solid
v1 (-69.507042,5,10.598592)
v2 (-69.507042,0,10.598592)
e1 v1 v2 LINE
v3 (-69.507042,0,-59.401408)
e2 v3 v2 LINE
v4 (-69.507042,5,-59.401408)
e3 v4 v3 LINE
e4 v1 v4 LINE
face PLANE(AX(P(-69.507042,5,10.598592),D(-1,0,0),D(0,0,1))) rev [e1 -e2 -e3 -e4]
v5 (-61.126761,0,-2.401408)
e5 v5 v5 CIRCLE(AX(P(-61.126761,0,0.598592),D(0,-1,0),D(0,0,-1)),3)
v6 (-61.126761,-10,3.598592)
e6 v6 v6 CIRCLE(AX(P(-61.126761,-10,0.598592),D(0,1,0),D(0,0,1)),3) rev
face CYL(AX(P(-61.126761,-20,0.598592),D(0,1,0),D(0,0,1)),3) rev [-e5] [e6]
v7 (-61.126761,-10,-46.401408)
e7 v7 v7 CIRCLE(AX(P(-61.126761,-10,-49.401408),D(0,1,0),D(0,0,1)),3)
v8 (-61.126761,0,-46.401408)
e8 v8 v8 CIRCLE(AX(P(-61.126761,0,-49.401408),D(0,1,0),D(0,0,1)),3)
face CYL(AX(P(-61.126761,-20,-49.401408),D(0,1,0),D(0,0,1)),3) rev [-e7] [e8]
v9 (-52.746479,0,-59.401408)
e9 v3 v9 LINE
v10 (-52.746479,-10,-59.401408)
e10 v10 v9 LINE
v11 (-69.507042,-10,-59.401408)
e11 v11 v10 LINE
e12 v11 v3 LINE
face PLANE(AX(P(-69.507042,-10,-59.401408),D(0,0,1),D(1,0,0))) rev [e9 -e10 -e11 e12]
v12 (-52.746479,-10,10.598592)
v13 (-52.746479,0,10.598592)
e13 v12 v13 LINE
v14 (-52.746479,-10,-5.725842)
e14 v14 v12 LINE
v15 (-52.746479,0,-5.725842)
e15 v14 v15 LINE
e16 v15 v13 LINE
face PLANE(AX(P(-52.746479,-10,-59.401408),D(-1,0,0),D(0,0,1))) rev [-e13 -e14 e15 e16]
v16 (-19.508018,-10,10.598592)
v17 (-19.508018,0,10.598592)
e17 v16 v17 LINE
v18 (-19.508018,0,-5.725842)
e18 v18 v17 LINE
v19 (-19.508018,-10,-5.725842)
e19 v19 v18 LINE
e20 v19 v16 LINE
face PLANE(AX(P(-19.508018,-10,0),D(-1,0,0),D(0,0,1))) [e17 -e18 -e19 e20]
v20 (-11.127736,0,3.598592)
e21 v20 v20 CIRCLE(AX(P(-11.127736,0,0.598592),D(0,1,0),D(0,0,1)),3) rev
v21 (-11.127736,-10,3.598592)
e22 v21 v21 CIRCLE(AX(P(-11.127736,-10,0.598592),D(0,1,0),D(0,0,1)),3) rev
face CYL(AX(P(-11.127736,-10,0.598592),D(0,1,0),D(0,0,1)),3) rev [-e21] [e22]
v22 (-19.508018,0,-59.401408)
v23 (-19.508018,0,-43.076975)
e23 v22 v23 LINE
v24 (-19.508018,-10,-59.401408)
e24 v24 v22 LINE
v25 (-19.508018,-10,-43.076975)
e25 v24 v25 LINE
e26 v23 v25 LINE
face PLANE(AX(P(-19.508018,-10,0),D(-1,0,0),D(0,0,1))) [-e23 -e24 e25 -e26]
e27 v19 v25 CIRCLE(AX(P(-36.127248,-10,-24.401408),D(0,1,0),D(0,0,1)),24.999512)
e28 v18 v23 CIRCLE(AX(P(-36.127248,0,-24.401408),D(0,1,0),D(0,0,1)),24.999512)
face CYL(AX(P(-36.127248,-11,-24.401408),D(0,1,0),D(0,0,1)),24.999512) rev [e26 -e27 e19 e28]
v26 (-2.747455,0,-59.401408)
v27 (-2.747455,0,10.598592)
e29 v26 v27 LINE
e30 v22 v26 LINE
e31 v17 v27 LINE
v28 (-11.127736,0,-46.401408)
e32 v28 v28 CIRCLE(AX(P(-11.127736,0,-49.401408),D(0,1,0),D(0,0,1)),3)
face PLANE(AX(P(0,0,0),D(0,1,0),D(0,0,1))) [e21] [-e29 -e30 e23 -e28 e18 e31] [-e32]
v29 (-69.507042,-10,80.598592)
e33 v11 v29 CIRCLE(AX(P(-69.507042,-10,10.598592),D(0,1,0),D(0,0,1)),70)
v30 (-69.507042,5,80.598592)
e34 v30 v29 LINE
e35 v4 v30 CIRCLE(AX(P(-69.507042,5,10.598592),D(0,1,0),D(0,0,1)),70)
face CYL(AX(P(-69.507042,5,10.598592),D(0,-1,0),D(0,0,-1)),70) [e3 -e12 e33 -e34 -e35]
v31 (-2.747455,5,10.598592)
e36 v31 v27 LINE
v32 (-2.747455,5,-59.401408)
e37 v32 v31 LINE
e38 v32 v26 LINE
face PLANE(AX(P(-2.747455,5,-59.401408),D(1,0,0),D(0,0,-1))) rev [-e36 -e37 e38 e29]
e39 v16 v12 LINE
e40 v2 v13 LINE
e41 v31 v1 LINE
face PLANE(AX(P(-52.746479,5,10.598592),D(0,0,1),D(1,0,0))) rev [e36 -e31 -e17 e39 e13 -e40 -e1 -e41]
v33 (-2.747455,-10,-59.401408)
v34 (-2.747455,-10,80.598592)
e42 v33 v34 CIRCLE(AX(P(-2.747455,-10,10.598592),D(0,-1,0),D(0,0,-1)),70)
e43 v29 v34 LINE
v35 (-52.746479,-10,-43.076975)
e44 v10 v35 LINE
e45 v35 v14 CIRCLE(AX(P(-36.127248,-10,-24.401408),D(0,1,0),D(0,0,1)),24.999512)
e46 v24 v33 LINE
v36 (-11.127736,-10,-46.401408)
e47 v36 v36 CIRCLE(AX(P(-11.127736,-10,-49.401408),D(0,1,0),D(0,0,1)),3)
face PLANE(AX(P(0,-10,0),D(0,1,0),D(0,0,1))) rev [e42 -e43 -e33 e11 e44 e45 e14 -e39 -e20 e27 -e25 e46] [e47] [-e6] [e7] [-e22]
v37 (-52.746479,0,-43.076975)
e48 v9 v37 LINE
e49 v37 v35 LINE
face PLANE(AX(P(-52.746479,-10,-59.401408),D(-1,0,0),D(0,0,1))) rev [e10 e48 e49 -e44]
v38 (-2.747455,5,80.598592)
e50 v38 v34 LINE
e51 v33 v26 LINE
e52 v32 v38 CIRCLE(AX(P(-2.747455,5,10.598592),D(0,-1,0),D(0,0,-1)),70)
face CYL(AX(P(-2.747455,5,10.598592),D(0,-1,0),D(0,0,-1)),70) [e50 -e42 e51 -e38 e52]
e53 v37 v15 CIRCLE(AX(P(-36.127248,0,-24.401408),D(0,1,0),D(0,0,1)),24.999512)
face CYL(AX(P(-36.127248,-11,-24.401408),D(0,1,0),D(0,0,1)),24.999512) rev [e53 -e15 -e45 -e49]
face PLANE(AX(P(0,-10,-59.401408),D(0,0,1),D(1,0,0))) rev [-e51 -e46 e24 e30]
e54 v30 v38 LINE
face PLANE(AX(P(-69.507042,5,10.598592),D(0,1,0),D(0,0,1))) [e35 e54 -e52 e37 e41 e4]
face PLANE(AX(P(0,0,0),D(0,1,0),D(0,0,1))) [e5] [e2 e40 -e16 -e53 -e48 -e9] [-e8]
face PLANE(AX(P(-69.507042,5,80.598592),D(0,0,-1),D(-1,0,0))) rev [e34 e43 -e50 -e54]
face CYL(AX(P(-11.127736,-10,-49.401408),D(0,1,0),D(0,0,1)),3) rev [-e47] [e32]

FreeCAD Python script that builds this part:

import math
import FreeCAD as App
import Part
import Sketcher

V = App.Vector

doc = App.newDocument("Part")
body = doc.addObject("PartDesign::Body", "Body")

sketch1 = body.newObject("Sketcher::SketchObject", "Sketch")
sketch1.AttachmentSupport = (doc.getObject("XZ_Plane"), [""])
sketch1.MapMode = "FlatFace"
sketch1.addGeometry([
    Part.LineSegment(V(-69.507042, -59.401408, 0), V(-69.507042, 10.598592, 0)),
    Part.LineSegment(V(-69.507042, 10.598592, 0), V(-52.746479, 10.598592, 0)),
    Part.LineSegment(V(-52.746479, 10.598592, 0), V(-52.746479, -59.401408, 0)),
    Part.LineSegment(V(-52.746479, -59.401408, 0), V(-69.507042, -59.401408, 0)),
], False)
sketch1.addConstraint([
    Sketcher.Constraint("Coincident", 0, 2, 1, 1),
    Sketcher.Constraint("Coincident", 1, 2, 2, 1),
    Sketcher.Constraint("Coincident", 2, 2, 3, 1),
    Sketcher.Constraint("Coincident", 3, 2, 0, 1),
    Sketcher.Constraint("Vertical", 0),
    Sketcher.Constraint("Horizontal", 1),
    Sketcher.Constraint("Vertical", 2),
    Sketcher.Constraint("Horizontal", 3),
    Sketcher.Constraint("DistanceY", 0, 1, 0, 2, 70.0),
    Sketcher.Constraint("DistanceX", 1, 1, 1, 2, 16.760563),
    Sketcher.Constraint("DistanceY", -1, 1, 0, 2, 10.598592),
    Sketcher.Constraint("DistanceX", 1, 2, -1, 1, 52.746479),
])
pad1 = body.newObject("PartDesign::Pad", "Pad")
pad1.Profile = sketch1
pad1.Length = 10

sketch2 = body.newObject("Sketcher::SketchObject", "Sketch001")
sketch2.AttachmentSupport = (doc.getObject("XZ_Plane"), [""])
sketch2.MapMode = "FlatFace"
sketch2.addGeometry([
    Part.Circle(V(-61.126761, -49.401408, 0), V(0, 0, 1), 3),
    Part.Circle(V(-61.126761, 0.598592, 0), V(0, 0, 1), 3),
], False)
sketch2.addConstraint([
    Sketcher.Constraint("Equal", 0, 1),
    Sketcher.Constraint("Vertical", 0, 3, 1, 3),
    Sketcher.Constraint("Diameter", 0, 6.0),
    Sketcher.Constraint("DistanceY", 0, 3, 1, 3, 50.0),
    Sketcher.Constraint("DistanceX", 0, 3, -1, 1, 61.126761),
    Sketcher.Constraint("DistanceY", 0, 3, -1, 1, 49.401408),
])
pocket1 = body.newObject("PartDesign::Pocket", "Pocket")
pocket1.Profile = sketch2
pocket1.Length = 20
pocket1.Reversed = True
body2 = doc.addObject("PartDesign::Body", "Body001")

sketch3 = body2.newObject("Sketcher::SketchObject", "Sketch002")
sketch3.AttachmentSupport = (doc.getObject("XZ_Plane001"), [""])
sketch3.MapMode = "FlatFace"
sketch3.addGeometry([
    Part.LineSegment(V(-2.747455, -59.401408, 0), V(-19.508018, -59.401408, 0)),
    Part.LineSegment(V(-19.508018, -59.401408, 0), V(-19.508018, 10.598592, 0)),
    Part.LineSegment(V(-19.508018, 10.598592, 0), V(-2.747455, 10.598592, 0)),
    Part.LineSegment(V(-2.747455, 10.598592, 0), V(-2.747455, -59.401408, 0)),
    Part.ArcOfCircle(Part.Circle(V(-11.127736, 0.598592, 0), V(0, 0, 1), 3), math.radians(90), math.radians(270)),
    Part.ArcOfCircle(Part.Circle(V(-11.127736, 0.598592, 0), V(0, 0, 1), 3), math.radians(-90), math.radians(0)),
    Part.ArcOfCircle(Part.Circle(V(-11.127736, 0.598592, 0), V(0, 0, 1), 3), math.radians(0), math.radians(90)),
    Part.ArcOfCircle(Part.Circle(V(-11.127736, -49.401408, 0), V(0, 0, 1), 3), math.radians(-90), math.radians(0)),
    Part.ArcOfCircle(Part.Circle(V(-11.127736, -49.401408, 0), V(0, 0, 1), 3), math.radians(0), math.radians(90)),
    Part.ArcOfCircle(Part.Circle(V(-11.127736, -49.401408, 0), V(0, 0, 1), 3), math.radians(90), math.radians(270)),
], False)
sketch3.addConstraint([
    Sketcher.Constraint("Coincident", 0, 2, 1, 1),
    Sketcher.Constraint("Coincident", 1, 2, 2, 1),
    Sketcher.Constraint("Coincident", 2, 2, 3, 1),
    Sketcher.Constraint("Coincident", 3, 2, 0, 1),
    Sketcher.Constraint("Tangent", 4, 2, 5, 1),
    Sketcher.Constraint("Tangent", 5, 2, 6, 1),
    Sketcher.Constraint("Tangent", 6, 2, 4, 1),
    Sketcher.Constraint("Tangent", 7, 2, 8, 1),
    Sketcher.Constraint("Tangent", 8, 2, 9, 1),
    Sketcher.Constraint("Tangent", 9, 2, 7, 1),
    Sketcher.Constraint("Horizontal", 0),
    Sketcher.Constraint("Vertical", 1),
    Sketcher.Constraint("Horizontal", 2),
    Sketcher.Constraint("Vertical", 3),
    Sketcher.Constraint("Equal", 6, 7),
    Sketcher.Constraint("Horizontal", 6, 3, 5, 2),
    Sketcher.Constraint("Horizontal", 9, 3, 7, 2),
    Sketcher.Constraint("Vertical", 6, 3, 7, 3),
    Sketcher.Constraint("Vertical", 9, 3, 4, 2),
    Sketcher.Constraint("Vertical", 4, 2, 6, 2),
    Sketcher.Constraint("Vertical", 6, 2, 8, 2),
    Sketcher.Constraint("Vertical", 8, 2, 9, 2),
    Sketcher.Constraint("Radius", 4, 3.0),
    Sketcher.Constraint("DistanceY", 1, 1, 1, 2, 70.0),
    Sketcher.Constraint("DistanceY", 7, 3, 4, 3, 50.0),
    Sketcher.Constraint("DistanceY", 0, 2, 7, 3, 10.0),
    Sketcher.Constraint("DistanceX", 0, 2, 0, 1, 16.760563),
    Sketcher.Constraint("DistanceY", -1, 1, 4, 3, 0.598592),
    Sketcher.Constraint("DistanceX", 0, 2, 7, 3, 8.380282),
    Sketcher.Constraint("DistanceX", 4, 3, -1, 1, 11.127736),
])
pad2 = body2.newObject("PartDesign::Pad", "Pad001")
pad2.Profile = sketch3
pad2.Length = 10
body3 = doc.addObject("PartDesign::Body", "Body002")

sketch4 = body3.newObject("Sketcher::SketchObject", "Sketch003")
sketch4.AttachmentSupport = (doc.getObject("XZ_Plane002"), [""])
sketch4.MapMode = "FlatFace"
sketch4.addGeometry(Part.Circle(V(-36.127248, -24.401408, 0), V(0, 0, 1), 24.999512), False)
sketch4.addConstraint([
    Sketcher.Constraint("Diameter", 0, 49.999024),
    Sketcher.Constraint("DistanceX", 0, 3, -1, 1, 36.127248),
    Sketcher.Constraint("DistanceY", 0, 3, -1, 1, 24.401408),
])
pad3 = body3.newObject("PartDesign::Pad", "Pad002")
pad3.Profile = sketch4
pad3.Length = 11
doc.recompute()

body4 = doc.addObject("PartDesign::Body", "Body003")
body4.BaseFeature = body3
boolean = body.newObject("PartDesign::Boolean", "Boolean")
boolean.Type = "Cut"
boolean.addObjects([body4])
doc.recompute()

boolean2 = body2.newObject("PartDesign::Boolean", "Boolean001")
boolean2.Type = "Cut"
boolean2.addObjects([body3])
body.AllowCompound = True
doc.recompute()

boolean3 = body.newObject("PartDesign::Boolean", "Boolean002")
boolean3.Type = "Fuse"
boolean3.addObjects([body2])

sketch5 = body.newObject("Sketcher::SketchObject", "Sketch004")
sketch5.AttachmentSupport = (doc.getObject("XZ_Plane"), [""])
sketch5.MapMode = "FlatFace"
sketch5.addGeometry([
    Part.LineSegment(V(-2.747455, -59.401408, 0), V(-2.747455, 10.598592, 0)),
    Part.LineSegment(V(-2.747455, 10.598592, 0), V(-69.507042, 10.598592, 0)),
    Part.LineSegment(V(-69.507042, 10.598592, 0), V(-69.507042, -59.401408, 0)),
    Part.ArcOfCircle(Part.Circle(V(-69.507042, 10.598592, 0), V(0, 0, 1), 70), math.radians(90), math.radians(270)),
    Part.LineSegment(V(-69.507042, 80.598592, 0), V(-2.747455, 80.598592, 0)),
    Part.ArcOfCircle(Part.Circle(V(-2.747455, 10.598592, 0), V(0, 0, 1), 70), math.radians(-90), math.radians(90)),
], False)
sketch5.addConstraint([
    Sketcher.Constraint("Coincident", 0, 2, 1, 1),
    Sketcher.Constraint("Coincident", 1, 2, 2, 1),
    Sketcher.Constraint("Coincident", 2, 2, 3, 2),
    Sketcher.Constraint("Tangent", 3, 1, 4, 1),
    Sketcher.Constraint("Tangent", 4, 2, 5, 2),
    Sketcher.Constraint("Coincident", 5, 1, 0, 1),
    Sketcher.Constraint("Vertical", 0),
    Sketcher.Constraint("Horizontal", 1),
    Sketcher.Constraint("Vertical", 2),
    Sketcher.Constraint("Horizontal", 4),
    Sketcher.Constraint("Coincident", 0, 2, 5, 3),
    Sketcher.Constraint("Coincident", 1, 2, 3, 3),
    Sketcher.Constraint("Radius", 3, 70.0),
    Sketcher.Constraint("DistanceX", 1, 2, 1, 1, 66.759588),
    Sketcher.Constraint("DistanceY", -1, 1, 3, 3, 10.598592),
    Sketcher.Constraint("DistanceX", 3, 3, -1, 1, 69.507042),
])
pad4 = body.newObject("PartDesign::Pad", "Pad003")
pad4.Profile = sketch5
pad4.Type = "TwoLengths"
pad4.Length = 5
pad4.Length2 = 10
pad4.Reversed = True

doc.recompute()
